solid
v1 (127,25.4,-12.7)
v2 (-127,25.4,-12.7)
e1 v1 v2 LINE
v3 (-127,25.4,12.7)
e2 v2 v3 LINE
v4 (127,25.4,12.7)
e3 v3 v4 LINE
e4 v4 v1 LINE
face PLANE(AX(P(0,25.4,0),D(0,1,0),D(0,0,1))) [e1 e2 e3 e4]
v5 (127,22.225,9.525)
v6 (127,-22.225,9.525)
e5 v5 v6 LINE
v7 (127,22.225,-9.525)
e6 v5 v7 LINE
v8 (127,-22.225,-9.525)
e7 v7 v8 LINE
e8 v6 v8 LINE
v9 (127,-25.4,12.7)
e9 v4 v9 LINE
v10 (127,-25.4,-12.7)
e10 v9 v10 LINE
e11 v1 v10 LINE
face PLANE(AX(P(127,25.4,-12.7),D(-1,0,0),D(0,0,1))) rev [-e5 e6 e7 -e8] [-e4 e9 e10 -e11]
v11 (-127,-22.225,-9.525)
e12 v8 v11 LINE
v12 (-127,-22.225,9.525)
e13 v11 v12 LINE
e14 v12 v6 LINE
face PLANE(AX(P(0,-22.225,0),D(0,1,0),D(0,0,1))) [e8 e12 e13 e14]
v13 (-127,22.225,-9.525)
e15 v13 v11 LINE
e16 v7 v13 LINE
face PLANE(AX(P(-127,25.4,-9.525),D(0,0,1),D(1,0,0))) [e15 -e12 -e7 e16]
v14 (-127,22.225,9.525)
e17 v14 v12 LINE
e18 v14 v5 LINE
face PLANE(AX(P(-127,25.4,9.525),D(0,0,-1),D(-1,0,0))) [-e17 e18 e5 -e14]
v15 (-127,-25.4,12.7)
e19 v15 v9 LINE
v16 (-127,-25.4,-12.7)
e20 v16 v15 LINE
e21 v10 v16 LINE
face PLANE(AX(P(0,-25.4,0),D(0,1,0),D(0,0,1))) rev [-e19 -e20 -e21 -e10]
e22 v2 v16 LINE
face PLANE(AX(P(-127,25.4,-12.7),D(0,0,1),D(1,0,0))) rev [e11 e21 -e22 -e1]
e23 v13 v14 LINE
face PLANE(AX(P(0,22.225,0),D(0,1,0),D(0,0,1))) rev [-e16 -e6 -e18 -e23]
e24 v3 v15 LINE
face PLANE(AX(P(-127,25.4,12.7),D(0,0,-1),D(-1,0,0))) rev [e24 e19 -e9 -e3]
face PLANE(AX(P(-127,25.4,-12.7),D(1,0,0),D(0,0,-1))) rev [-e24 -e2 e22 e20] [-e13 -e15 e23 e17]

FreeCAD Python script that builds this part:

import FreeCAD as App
import Part
import Sketcher
from FreeCAD import Vector
Q = App.Units.Quantity


def faces_at(feature, points):
    """Names of the faces that lie closest to the given points."""
    faces = feature.Shape.Faces
    near = lambda p: min(range(len(faces)), key=lambda i: faces[i].distToShape(Part.Vertex(*p))[0])
    return sorted({f"Face{near(p) + 1}" for p in points})

doc = App.newDocument("Part")
body = doc.addObject("PartDesign::Body", "Body")

sketch1 = body.newObject("Sketcher::SketchObject", "Sketch")
sketch1.AttachmentSupport = (doc.getObject("XZ_Plane"), [""])
sketch1.MapMode = "FlatFace"
sketch1.addGeometry([
    Part.LineSegment(Vector(-127, -13, 0), Vector(-127, 13, 0)),
    Part.LineSegment(Vector(-127, 13, 0), Vector(127, 13, 0)),
    Part.LineSegment(Vector(127, 13, 0), Vector(127, -13, 0)),
    Part.LineSegment(Vector(127, -13, 0), Vector(-127, -13, 0)),
], False)
sketch1.addConstraint([
    Sketcher.Constraint("Coincident", 0, 2, 1, 1),
    Sketcher.Constraint("Coincident", 1, 2, 2, 1),
    Sketcher.Constraint("Coincident", 2, 2, 3, 1),
    Sketcher.Constraint("Coincident", 3, 2, 0, 1),
    Sketcher.Constraint("Vertical", 0),
    Sketcher.Constraint("Horizontal", 1),
    Sketcher.Constraint("Vertical", 2),
    Sketcher.Constraint("Horizontal", 3),
    Sketcher.Constraint("Symmetric", 0, 2, 2, 2, -1, 1),
    Sketcher.Constraint("DistanceX", 1, 1, 1, 2, Q("10 in")),
    Sketcher.Constraint("DistanceY", 0, 1, 0, 2, Q("1 in")),
])
pad1 = body.newObject("PartDesign::Pad", "Pad")
pad1.Profile = sketch1
pad1.Length = Q("2 in")
pad1.Midplane = True
doc.recompute()

thickness = body.newObject("PartDesign::Thickness", "Thickness")
thickness.Base = (pad1, faces_at(pad1, [(-127, 0, 0), (127, 0, 0)]))
thickness.Value = Q("0.125 in")
thickness.Reversed = True
thickness.Join = "Intersection"

doc.recompute()
